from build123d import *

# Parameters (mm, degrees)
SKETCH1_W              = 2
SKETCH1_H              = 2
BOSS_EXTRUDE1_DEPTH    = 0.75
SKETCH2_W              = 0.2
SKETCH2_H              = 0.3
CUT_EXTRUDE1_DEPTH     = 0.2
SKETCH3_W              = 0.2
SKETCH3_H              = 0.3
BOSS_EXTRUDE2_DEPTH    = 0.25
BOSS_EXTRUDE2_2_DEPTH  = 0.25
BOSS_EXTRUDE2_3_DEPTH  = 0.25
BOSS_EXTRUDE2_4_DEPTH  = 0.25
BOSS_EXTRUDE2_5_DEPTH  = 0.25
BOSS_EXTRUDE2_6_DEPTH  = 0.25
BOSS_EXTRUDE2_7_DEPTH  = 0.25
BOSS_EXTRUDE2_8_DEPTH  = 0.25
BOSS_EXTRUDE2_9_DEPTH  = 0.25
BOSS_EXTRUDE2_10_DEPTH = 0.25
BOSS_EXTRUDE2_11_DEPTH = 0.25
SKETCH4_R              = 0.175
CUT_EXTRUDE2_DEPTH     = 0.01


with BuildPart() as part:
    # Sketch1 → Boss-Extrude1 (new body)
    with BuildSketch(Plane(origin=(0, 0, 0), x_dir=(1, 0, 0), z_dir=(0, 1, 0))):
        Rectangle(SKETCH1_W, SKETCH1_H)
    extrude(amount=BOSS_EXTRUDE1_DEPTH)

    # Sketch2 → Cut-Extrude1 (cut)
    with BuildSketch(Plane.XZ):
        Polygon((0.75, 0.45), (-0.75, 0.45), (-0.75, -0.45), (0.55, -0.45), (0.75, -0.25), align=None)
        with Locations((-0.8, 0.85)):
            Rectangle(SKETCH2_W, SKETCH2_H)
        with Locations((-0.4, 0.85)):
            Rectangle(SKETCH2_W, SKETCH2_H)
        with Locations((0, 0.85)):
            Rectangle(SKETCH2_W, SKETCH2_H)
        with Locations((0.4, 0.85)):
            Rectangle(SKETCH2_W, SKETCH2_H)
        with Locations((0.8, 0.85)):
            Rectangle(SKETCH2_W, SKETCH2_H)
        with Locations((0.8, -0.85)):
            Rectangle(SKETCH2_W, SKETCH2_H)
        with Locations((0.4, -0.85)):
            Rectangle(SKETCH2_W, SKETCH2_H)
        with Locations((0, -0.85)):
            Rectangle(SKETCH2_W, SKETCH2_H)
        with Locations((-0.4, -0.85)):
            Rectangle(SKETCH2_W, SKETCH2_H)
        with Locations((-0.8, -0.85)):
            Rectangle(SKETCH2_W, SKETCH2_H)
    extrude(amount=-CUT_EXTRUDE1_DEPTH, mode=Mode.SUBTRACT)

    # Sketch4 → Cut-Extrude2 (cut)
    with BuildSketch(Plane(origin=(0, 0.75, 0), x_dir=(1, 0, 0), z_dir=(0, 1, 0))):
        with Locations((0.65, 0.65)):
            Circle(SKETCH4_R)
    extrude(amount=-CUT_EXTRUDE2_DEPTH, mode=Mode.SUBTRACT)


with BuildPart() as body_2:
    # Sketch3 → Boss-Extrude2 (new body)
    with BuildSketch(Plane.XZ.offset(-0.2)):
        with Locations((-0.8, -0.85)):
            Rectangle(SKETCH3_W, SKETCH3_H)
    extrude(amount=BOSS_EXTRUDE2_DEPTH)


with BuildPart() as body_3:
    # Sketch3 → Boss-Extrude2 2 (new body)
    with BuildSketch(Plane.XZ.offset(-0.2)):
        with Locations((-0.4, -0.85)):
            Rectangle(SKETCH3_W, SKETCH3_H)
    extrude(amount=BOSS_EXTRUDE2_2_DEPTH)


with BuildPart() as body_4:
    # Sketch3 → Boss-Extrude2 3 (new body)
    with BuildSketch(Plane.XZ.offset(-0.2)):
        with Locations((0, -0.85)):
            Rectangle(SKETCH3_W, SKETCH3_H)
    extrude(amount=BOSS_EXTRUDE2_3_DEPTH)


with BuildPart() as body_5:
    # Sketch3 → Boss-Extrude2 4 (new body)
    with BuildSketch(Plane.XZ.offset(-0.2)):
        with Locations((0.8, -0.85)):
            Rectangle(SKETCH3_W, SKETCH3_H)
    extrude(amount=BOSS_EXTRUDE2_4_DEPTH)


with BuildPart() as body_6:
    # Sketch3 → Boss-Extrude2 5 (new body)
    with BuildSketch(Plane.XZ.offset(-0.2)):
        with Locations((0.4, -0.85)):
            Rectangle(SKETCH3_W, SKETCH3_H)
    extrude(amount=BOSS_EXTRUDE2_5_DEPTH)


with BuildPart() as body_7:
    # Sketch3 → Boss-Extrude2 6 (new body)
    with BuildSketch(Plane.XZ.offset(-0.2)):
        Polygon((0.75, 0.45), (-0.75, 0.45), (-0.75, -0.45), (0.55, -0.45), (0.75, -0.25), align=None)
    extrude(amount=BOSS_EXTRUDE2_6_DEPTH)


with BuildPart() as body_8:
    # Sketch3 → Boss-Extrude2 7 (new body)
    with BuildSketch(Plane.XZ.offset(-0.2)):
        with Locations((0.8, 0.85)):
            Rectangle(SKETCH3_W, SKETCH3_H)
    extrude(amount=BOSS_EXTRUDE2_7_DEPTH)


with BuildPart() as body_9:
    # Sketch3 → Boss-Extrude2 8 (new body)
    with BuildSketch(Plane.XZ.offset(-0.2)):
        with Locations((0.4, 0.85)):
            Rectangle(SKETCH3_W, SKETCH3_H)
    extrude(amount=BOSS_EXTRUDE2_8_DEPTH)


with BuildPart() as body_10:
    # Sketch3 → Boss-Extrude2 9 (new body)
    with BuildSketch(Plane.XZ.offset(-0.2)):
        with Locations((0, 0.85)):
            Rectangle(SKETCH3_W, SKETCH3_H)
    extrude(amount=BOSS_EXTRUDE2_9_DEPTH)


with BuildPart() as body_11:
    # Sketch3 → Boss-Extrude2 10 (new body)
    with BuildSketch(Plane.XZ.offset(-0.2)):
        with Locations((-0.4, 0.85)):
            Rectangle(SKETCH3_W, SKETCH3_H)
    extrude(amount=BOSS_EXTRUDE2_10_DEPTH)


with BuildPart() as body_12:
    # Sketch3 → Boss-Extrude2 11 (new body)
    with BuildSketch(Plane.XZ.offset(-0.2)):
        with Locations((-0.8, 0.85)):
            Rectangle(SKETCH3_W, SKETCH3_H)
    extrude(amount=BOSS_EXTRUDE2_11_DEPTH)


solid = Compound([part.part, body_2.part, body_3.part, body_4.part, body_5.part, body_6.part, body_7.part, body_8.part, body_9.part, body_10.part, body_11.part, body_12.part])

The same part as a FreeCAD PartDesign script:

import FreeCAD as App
import Part
import Sketcher

V = App.Vector
Q = App.Units.Quantity


def add_polygon(sketch, points):
    """Adds a closed chain of lines whose ends are joined by coincident constraints."""
    first, n = sketch.GeometryCount, len(points)
    for a, b in zip(points, points[1:] + points[:1]):
        sketch.addGeometry(Part.LineSegment(App.Vector(*a, 0), App.Vector(*b, 0)), False)
    for i in range(n):
        sketch.addConstraint(Sketcher.Constraint("Coincident", first + i, 2, first + (i + 1) % n, 1))

doc = App.newDocument("Part")
body = doc.addObject("PartDesign::Body", "Body")

sketch1 = body.newObject("Sketcher::SketchObject", "Sketch")
sketch1.AttachmentSupport = (doc.getObject("XZ_Plane"), [""])
sketch1.MapMode = "FlatFace"
add_polygon(sketch1, [(-1, -1), (-1, 1), (1, 1), (1, -1)])
sketch1.addConstraint([
    Sketcher.Constraint("Vertical", 0),
    Sketcher.Constraint("Horizontal", 1),
    Sketcher.Constraint("Vertical", 2),
    Sketcher.Constraint("Horizontal", 3),
    Sketcher.Constraint("Symmetric", 0, 2, 2, 2, -1, 1),
    Sketcher.Constraint("Equal", 3, 0),
    Sketcher.Constraint("DistanceX", 1, 1, 1, 2, Q("2 mm")),
])
pad1 = body.newObject("PartDesign::Pad", "Pad")
pad1.Profile = sketch1
pad1.Length = 0.75
pad1.Reversed = True

sketch2 = body.newObject("Sketcher::SketchObject", "Sketch001")
sketch2.AttachmentSupport = (doc.getObject("XZ_Plane"), [""])
sketch2.MapMode = "FlatFace"
add_polygon(sketch2, [(0.75, 0.45), (-0.75, 0.45), (-0.75, -0.45), (0.55, -0.45), (0.75, -0.25)])
add_polygon(sketch2, [(-0.9, 1), (-0.9, 0.7), (-0.7, 0.7), (-0.7, 1)])
add_polygon(sketch2, [(-0.5, 1), (-0.5, 0.7), (-0.3, 0.7), (-0.3, 1)])
add_polygon(sketch2, [(-0.1, 1), (-0.1, 0.7), (0.1, 0.7), (0.1, 1)])
add_polygon(sketch2, [(0.3, 1), (0.3, 0.7), (0.5, 0.7), (0.5, 1)])
add_polygon(sketch2, [(0.7, 1), (0.7, 0.7), (0.9, 0.7), (0.9, 1)])
add_polygon(sketch2, [(0.7, -0.7), (0.7, -1), (0.9, -1), (0.9, -0.7)])
add_polygon(sketch2, [(0.3, -0.7), (0.3, -1), (0.5, -1), (0.5, -0.7)])
add_polygon(sketch2, [(-0.1, -0.7), (-0.1, -1), (0.1, -1), (0.1, -0.7)])
add_polygon(sketch2, [(-0.5, -0.7), (-0.5, -1), (-0.3, -1), (-0.3, -0.7)])
add_polygon(sketch2, [(-0.9, -0.7), (-0.9, -1), (-0.7, -1), (-0.7, -0.7)])
sketch2.addConstraint([
    Sketcher.Constraint("Horizontal", 0),
    Sketcher.Constraint("Vertical", 1),
    Sketcher.Constraint("Horizontal", 2),
    Sketcher.Constraint("Vertical", 4),
    Sketcher.Constraint("Vertical", 5),
    Sketcher.Constraint("Horizontal", 6),
    Sketcher.Constraint("Vertical", 7),
    Sketcher.Constraint("Horizontal", 8),
    Sketcher.Constraint("Vertical", 9),
    Sketcher.Constraint("Horizontal", 10),
    Sketcher.Constraint("Vertical", 11),
    Sketcher.Constraint("Horizontal", 12),
    Sketcher.Constraint("Vertical", 13),
    Sketcher.Constraint("Horizontal", 14),
    Sketcher.Constraint("Vertical", 15),
    Sketcher.Constraint("Horizontal", 16),
    Sketcher.Constraint("Vertical", 17),
    Sketcher.Constraint("Horizontal", 18),
    Sketcher.Constraint("Vertical", 19),
    Sketcher.Constraint("Horizontal", 20),
    Sketcher.Constraint("Vertical", 21),
    Sketcher.Constraint("Horizontal", 22),
    Sketcher.Constraint("Vertical", 23),
    Sketcher.Constraint("Horizontal", 24),
    Sketcher.Constraint("Vertical", 25),
    Sketcher.Constraint("Horizontal", 26),
    Sketcher.Constraint("Vertical", 27),
    Sketcher.Constraint("Horizontal", 28),
    Sketcher.Constraint("Vertical", 29),
    Sketcher.Constraint("Horizontal", 30),
    Sketcher.Constraint("Vertical", 31),
    Sketcher.Constraint("Horizontal", 32),
    Sketcher.Constraint("Vertical", 33),
    Sketcher.Constraint("Horizontal", 34),
    Sketcher.Constraint("Vertical", 35),
    Sketcher.Constraint("Horizontal", 36),
    Sketcher.Constraint("Vertical", 37),
    Sketcher.Constraint("Horizontal", 38),
    Sketcher.Constraint("Vertical", 39),
    Sketcher.Constraint("Horizontal", 40),
    Sketcher.Constraint("Vertical", 41),
    Sketcher.Constraint("Horizontal", 42),
    Sketcher.Constraint("Vertical", 43),
    Sketcher.Constraint("Horizontal", 44),
    Sketcher.Constraint("Symmetric", 1, 2, 4, 2, -1, 1),
    Sketcher.Constraint("Symmetric", 7, 2, 25, 2, -1, 1),
    Sketcher.Constraint("Symmetric", 5, 2, 27, 2, -1, 1),
    Sketcher.Constraint("Symmetric", 11, 2, 29, 2, -1, 1),
    Sketcher.Constraint("Symmetric", 9, 2, 31, 2, -1, 1),
    Sketcher.Constraint("Symmetric", 15, 2, 33, 2, -1, 1),
    Sketcher.Constraint("Symmetric", 13, 2, 35, 2, -1, 1),
    Sketcher.Constraint("Symmetric", 19, 2, 37, 2, -1, 1),
    Sketcher.Constraint("Symmetric", 17, 2, 39, 2, -1, 1),
    Sketcher.Constraint("Symmetric", 23, 2, 41, 2, -1, 1),
    Sketcher.Constraint("Symmetric", 21, 2, 43, 2, -1, 1),
    Sketcher.Constraint("Symmetric", 10, 2, 17, 2, -2),
    Sketcher.Constraint("Symmetric", 12, 2, 19, 2, -2),
    Sketcher.Constraint("Symmetric", 6, 2, 21, 2, -2),
    Sketcher.Constraint("Symmetric", 8, 2, 23, 2, -2),
    Sketcher.Constraint("Horizontal", 6, 2, 9, 2),
    Sketcher.Constraint("Horizontal", 8, 2, 11, 2),
    Sketcher.Constraint("Horizontal", 10, 2, 13, 2),
    Sketcher.Constraint("Horizontal", 12, 2, 15, 2),
    Sketcher.Constraint("Vertical", 16, 2, 33, 2),
    Sketcher.Constraint("Equal", 8, 10),
    Sketcher.Constraint("Equal", 12, 14),
    Sketcher.Constraint("Angle", 3, Q("45 deg")),
    Sketcher.Constraint("DistanceX", 0, 2, 0, 1, Q("1.5 mm")),
    Sketcher.Constraint("DistanceX", 2, 1, 2, 2, Q("1.3 mm")),
    Sketcher.Constraint("DistanceX", 6, 1, 6, 2, Q("0.2 mm")),
    Sketcher.Constraint("DistanceY", 1, 2, 1, 1, Q("0.9 mm")),
    Sketcher.Constraint("DistanceY", 5, 2, 5, 1, Q("0.3 mm")),
    Sketcher.Constraint("DistanceY", -1, 1, 7, 2, Q("1 mm")),
    Sketcher.Constraint("DistanceX", 5, 2, -1, 1, Q("0.9 mm")),
    Sketcher.Constraint("DistanceX", 9, 2, -1, 1, Q("0.5 mm")),
])
pocket1 = body.newObject("PartDesign::Pocket", "Pocket")
pocket1.Profile = sketch2
pocket1.Length = 0.2

sketch3 = body.newObject("Sketcher::SketchObject", "Sketch002")
sketch3.AttachmentSupport = (doc.getObject("XZ_Plane"), [""])
sketch3.MapMode = "FlatFace"
sketch3.AttachmentOffset = App.Placement(V(0, 0, -0.75), App.Rotation())
sketch3.addGeometry(Part.Circle(V(0.65, -0.65, 0), V(0, 0, 1), 0.17), False)
sketch3.addConstraint([
    Sketcher.Constraint("Diameter", 0, Q("0.35 mm")),
    Sketcher.Constraint("DistanceX", -1, 1, 0, 3, Q("0.65 mm")),
    Sketcher.Constraint("DistanceY", 0, 3, -1, 1, Q("0.65 mm")),
])
pocket2 = body.newObject("PartDesign::Pocket", "Pocket001")
pocket2.Profile = sketch3
pocket2.Length = 0.01
pocket2.Reversed = True
body2 = doc.addObject("PartDesign::Body", "Body001")

sketch4 = body2.newObject("Sketcher::SketchObject", "Sketch003")
sketch4.AttachmentSupport = (doc.getObject("XZ_Plane001"), [""])
sketch4.MapMode = "FlatFace"
sketch4.AttachmentOffset = App.Placement(V(0, 0, -0.2), App.Rotation())
add_polygon(sketch4, [(-0.9, -0.7), (-0.9, -1), (-0.7, -1), (-0.7, -0.7)])
sketch4.addConstraint([
    Sketcher.Constraint("Vertical", 0),
    Sketcher.Constraint("Horizontal", 1),
    Sketcher.Constraint("Vertical", 2),
    Sketcher.Constraint("Horizontal", 3),
    Sketcher.Constraint("DistanceX", 1, 1, 1, 2, Q("0.2 mm")),
    Sketcher.Constraint("DistanceY", 0, 2, 0, 1, Q("0.3 mm")),
    Sketcher.Constraint("DistanceY", 0, 2, -1, 1, Q("1 mm")),
    Sketcher.Constraint("DistanceX", 0, 2, -1, 1, Q("0.9 mm")),
])
pad2 = body2.newObject("PartDesign::Pad", "Pad001")
pad2.Profile = sketch4
pad2.Length = 0.25
body3 = doc.addObject("PartDesign::Body", "Body002")

sketch5 = body3.newObject("Sketcher::SketchObject", "Sketch004")
sketch5.AttachmentSupport = (doc.getObject("XZ_Plane002"), [""])
sketch5.MapMode = "FlatFace"
sketch5.AttachmentOffset = App.Placement(V(0, 0, -0.2), App.Rotation())
add_polygon(sketch5, [(-0.5, -0.7), (-0.5, -1), (-0.3, -1), (-0.3, -0.7)])
sketch5.addConstraint([
    Sketcher.Constraint("Vertical", 0),
    Sketcher.Constraint("Horizontal", 1),
    Sketcher.Constraint("Vertical", 2),
    Sketcher.Constraint("Horizontal", 3),
    Sketcher.Constraint("DistanceX", 1, 1, 1, 2, Q("0.2 mm")),
    Sketcher.Constraint("DistanceY", 0, 2, 0, 1, Q("0.3 mm")),
    Sketcher.Constraint("DistanceY", 0, 2, -1, 1, Q("1 mm")),
    Sketcher.Constraint("DistanceX", 0, 2, -1, 1, Q("0.5 mm")),
])
pad3 = body3.newObject("PartDesign::Pad", "Pad002")
pad3.Profile = sketch5
pad3.Length = 0.25
body4 = doc.addObject("PartDesign::Body", "Body003")

sketch6 = body4.newObject("Sketcher::SketchObject", "Sketch005")
sketch6.AttachmentSupport = (doc.getObject("XZ_Plane003"), [""])
sketch6.MapMode = "FlatFace"
sketch6.AttachmentOffset = App.Placement(V(0, 0, -0.2), App.Rotation())
add_polygon(sketch6, [(-0.1, -0.7), (-0.1, -1), (0.1, -1), (0.1, -0.7)])
sketch6.addConstraint([
    Sketcher.Constraint("Vertical", 0),
    Sketcher.Constraint("Horizontal", 1),
    Sketcher.Constraint("Vertical", 2),
    Sketcher.Constraint("Horizontal", 3),
    Sketcher.Constraint("DistanceX", 1, 1, 1, 2, Q("0.2 mm")),
    Sketcher.Constraint("DistanceY", 0, 2, 0, 1, Q("0.3 mm")),
    Sketcher.Constraint("DistanceY", 0, 2, -1, 1, Q("1 mm")),
    Sketcher.Constraint("DistanceX", 0, 2, -1, 1, Q("0.1 mm")),
])
pad4 = body4.newObject("PartDesign::Pad", "Pad003")
pad4.Profile = sketch6
pad4.Length = 0.25
body5 = doc.addObject("PartDesign::Body", "Body004")

sketch7 = body5.newObject("Sketcher::SketchObject", "Sketch006")
sketch7.AttachmentSupport = (doc.getObject("XZ_Plane004"), [""])
sketch7.MapMode = "FlatFace"
sketch7.AttachmentOffset = App.Placement(V(0, 0, -0.2), App.Rotation())
add_polygon(sketch7, [(0.7, -0.7), (0.7, -1), (0.9, -1), (0.9, -0.7)])
sketch7.addConstraint([
    Sketcher.Constraint("Vertical", 0),
    Sketcher.Constraint("Horizontal", 1),
    Sketcher.Constraint("Vertical", 2),
    Sketcher.Constraint("Horizontal", 3),
    Sketcher.Constraint("DistanceX", 1, 1, 1, 2, Q("0.2 mm")),
    Sketcher.Constraint("DistanceY", 0, 2, 0, 1, Q("0.3 mm")),
    Sketcher.Constraint("DistanceY", 0, 2, -1, 1, Q("1 mm")),
    Sketcher.Constraint("DistanceX", -1, 1, 0, 2, Q("0.7 mm")),
])
pad5 = body5.newObject("PartDesign::Pad", "Pad004")
pad5.Profile = sketch7
pad5.Length = 0.25
body6 = doc.addObject("PartDesign::Body", "Body005")

sketch8 = body6.newObject("Sketcher::SketchObject", "Sketch007")
sketch8.AttachmentSupport = (doc.getObject("XZ_Plane005"), [""])
sketch8.MapMode = "FlatFace"
sketch8.AttachmentOffset = App.Placement(V(0, 0, -0.2), App.Rotation())
add_polygon(sketch8, [(0.3, -0.7), (0.3, -1), (0.5, -1), (0.5, -0.7)])
sketch8.addConstraint([
    Sketcher.Constraint("Vertical", 0),
    Sketcher.Constraint("Horizontal", 1),
    Sketcher.Constraint("Vertical", 2),
    Sketcher.Constraint("Horizontal", 3),
    Sketcher.Constraint("DistanceX", 1, 1, 1, 2, Q("0.2 mm")),
    Sketcher.Constraint("DistanceY", 0, 2, 0, 1, Q("0.3 mm")),
    Sketcher.Constraint("DistanceY", 0, 2, -1, 1, Q("1 mm")),
    Sketcher.Constraint("DistanceX", -1, 1, 0, 2, Q("0.3 mm")),
])
pad6 = body6.newObject("PartDesign::Pad", "Pad005")
pad6.Profile = sketch8
pad6.Length = 0.25
body7 = doc.addObject("PartDesign::Body", "Body006")

sketch9 = body7.newObject("Sketcher::SketchObject", "Sketch008")
sketch9.AttachmentSupport = (doc.getObject("XZ_Plane006"), [""])
sketch9.MapMode = "FlatFace"
sketch9.AttachmentOffset = App.Placement(V(0, 0, -0.2), App.Rotation())
add_polygon(sketch9, [(0.75, 0.45), (-0.75, 0.45), (-0.75, -0.45), (0.55, -0.45), (0.75, -0.25)])
sketch9.addConstraint([
    Sketcher.Constraint("Horizontal", 0),
    Sketcher.Constraint("Vertical", 1),
    Sketcher.Constraint("Horizontal", 2),
    Sketcher.Constraint("Vertical", 4),
    Sketcher.Constraint("Symmetric", 1, 2, 4, 2, -1, 1),
    Sketcher.Constraint("Angle", 3, Q("45 deg")),
    Sketcher.Constraint("DistanceX", 0, 2, 0, 1, Q("1.5 mm")),
    Sketcher.Constraint("DistanceX", 2, 1, 2, 2, Q("1.3 mm")),
    Sketcher.Constraint("DistanceY", 1, 2, 1, 1, Q("0.9 mm")),
])
pad7 = body7.newObject("PartDesign::Pad", "Pad006")
pad7.Profile = sketch9
pad7.Length = 0.25
body8 = doc.addObject("PartDesign::Body", "Body007")

sketch10 = body8.newObject("Sketcher::SketchObject", "Sketch009")
sketch10.AttachmentSupport = (doc.getObject("XZ_Plane007"), [""])
sketch10.MapMode = "FlatFace"
sketch10.AttachmentOffset = App.Placement(V(0, 0, -0.2), App.Rotation())
add_polygon(sketch10, [(0.7, 1), (0.7, 0.7), (0.9, 0.7), (0.9, 1)])
sketch10.addConstraint([
    Sketcher.Constraint("Vertical", 0),
    Sketcher.Constraint("Horizontal", 1),
    Sketcher.Constraint("Vertical", 2),
    Sketcher.Constraint("Horizontal", 3),
    Sketcher.Constraint("DistanceX", 1, 1, 1, 2, Q("0.2 mm")),
    Sketcher.Constraint("DistanceY", 0, 2, 0, 1, Q("0.3 mm")),
    Sketcher.Constraint("DistanceY", -1, 1, 2, 2, Q("1 mm")),
    Sketcher.Constraint("DistanceX", -1, 1, 0, 2, Q("0.7 mm")),
])
pad8 = body8.newObject("PartDesign::Pad", "Pad007")
pad8.Profile = sketch10
pad8.Length = 0.25
body9 = doc.addObject("PartDesign::Body", "Body008")

sketch11 = body9.newObject("Sketcher::SketchObject", "Sketch010")
sketch11.AttachmentSupport = (doc.getObject("XZ_Plane008"), [""])
sketch11.MapMode = "FlatFace"
sketch11.AttachmentOffset = App.Placement(V(0, 0, -0.2), App.Rotation())
add_polygon(sketch11, [(0.3, 1), (0.3, 0.7), (0.5, 0.7), (0.5, 1)])
sketch11.addConstraint([
    Sketcher.Constraint("Vertical", 0),
    Sketcher.Constraint("Horizontal", 1),
    Sketcher.Constraint("Vertical", 2),
    Sketcher.Constraint("Horizontal", 3),
    Sketcher.Constraint("DistanceX", 1, 1, 1, 2, Q("0.2 mm")),
    Sketcher.Constraint("DistanceY", 0, 2, 0, 1, Q("0.3 mm")),
    Sketcher.Constraint("DistanceY", -1, 1, 2, 2, Q("1 mm")),
    Sketcher.Constraint("DistanceX", -1, 1, 0, 2, Q("0.3 mm")),
])
pad9 = body9.newObject("PartDesign::Pad", "Pad008")
pad9.Profile = sketch11
pad9.Length = 0.25
body10 = doc.addObject("PartDesign::Body", "Body009")

sketch12 = body10.newObject("Sketcher::SketchObject", "Sketch011")
sketch12.AttachmentSupport = (doc.getObject("XZ_Plane009"), [""])
sketch12.MapMode = "FlatFace"
sketch12.AttachmentOffset = App.Placement(V(0, 0, -0.2), App.Rotation())
add_polygon(sketch12, [(-0.1, 1), (-0.1, 0.7), (0.1, 0.7), (0.1, 1)])
sketch12.addConstraint([
    Sketcher.Constraint("Vertical", 0),
    Sketcher.Constraint("Horizontal", 1),
    Sketcher.Constraint("Vertical", 2),
    Sketcher.Constraint("Horizontal", 3),
    Sketcher.Constraint("DistanceX", 1, 1, 1, 2, Q("0.2 mm")),
    Sketcher.Constraint("DistanceY", 0, 2, 0, 1, Q("0.3 mm")),
    Sketcher.Constraint("DistanceY", -1, 1, 2, 2, Q("1 mm")),
    Sketcher.Constraint("DistanceX", 0, 2, -1, 1, Q("0.1 mm")),
])
pad10 = body10.newObject("PartDesign::Pad", "Pad009")
pad10.Profile = sketch12
pad10.Length = 0.25
body11 = doc.addObject("PartDesign::Body", "Body010")

sketch13 = body11.newObject("Sketcher::SketchObject", "Sketch012")
sketch13.AttachmentSupport = (doc.getObject("XZ_Plane010"), [""])
sketch13.MapMode = "FlatFace"
sketch13.AttachmentOffset = App.Placement(V(0, 0, -0.2), App.Rotation())
add_polygon(sketch13, [(-0.5, 1), (-0.5, 0.7), (-0.3, 0.7), (-0.3, 1)])
sketch13.addConstraint([
    Sketcher.Constraint("Vertical", 0),
    Sketcher.Constraint("Horizontal", 1),
    Sketcher.Constraint("Vertical", 2),
    Sketcher.Constraint("Horizontal", 3),
    Sketcher.Constraint("DistanceX", 1, 1, 1, 2, Q("0.2 mm")),
    Sketcher.Constraint("DistanceY", 0, 2, 0, 1, Q("0.3 mm")),
    Sketcher.Constraint("DistanceY", -1, 1, 2, 2, Q("1 mm")),
    Sketcher.Constraint("DistanceX", 0, 2, -1, 1, Q("0.5 mm")),
])
pad11 = body11.newObject("PartDesign::Pad", "Pad010")
pad11.Profile = sketch13
pad11.Length = 0.25
body12 = doc.addObject("PartDesign::Body", "Body011")

sketch14 = body12.newObject("Sketcher::SketchObject", "Sketch013")
sketch14.AttachmentSupport = (doc.getObject("XZ_Plane011"), [""])
sketch14.MapMode = "FlatFace"
sketch14.AttachmentOffset = App.Placement(V(0, 0, -0.2), App.Rotation())
add_polygon(sketch14, [(-0.9, 1), (-0.9, 0.7), (-0.7, 0.7), (-0.7, 1)])
sketch14.addConstraint([
    Sketcher.Constraint("Vertical", 0),
    Sketcher.Constraint("Horizontal", 1),
    Sketcher.Constraint("Vertical", 2),
    Sketcher.Constraint("Horizontal", 3),
    Sketcher.Constraint("DistanceX", 1, 1, 1, 2, Q("0.2 mm")),
    Sketcher.Constraint("DistanceY", 0, 2, 0, 1, Q("0.3 mm")),
    Sketcher.Constraint("DistanceY", -1, 1, 2, 2, Q("1 mm")),
    Sketcher.Constraint("DistanceX", 0, 2, -1, 1, Q("0.9 mm")),
])
pad12 = body12.newObject("PartDesign::Pad", "Pad011")
pad12.Profile = sketch14
pad12.Length = 0.25

doc.recompute()
